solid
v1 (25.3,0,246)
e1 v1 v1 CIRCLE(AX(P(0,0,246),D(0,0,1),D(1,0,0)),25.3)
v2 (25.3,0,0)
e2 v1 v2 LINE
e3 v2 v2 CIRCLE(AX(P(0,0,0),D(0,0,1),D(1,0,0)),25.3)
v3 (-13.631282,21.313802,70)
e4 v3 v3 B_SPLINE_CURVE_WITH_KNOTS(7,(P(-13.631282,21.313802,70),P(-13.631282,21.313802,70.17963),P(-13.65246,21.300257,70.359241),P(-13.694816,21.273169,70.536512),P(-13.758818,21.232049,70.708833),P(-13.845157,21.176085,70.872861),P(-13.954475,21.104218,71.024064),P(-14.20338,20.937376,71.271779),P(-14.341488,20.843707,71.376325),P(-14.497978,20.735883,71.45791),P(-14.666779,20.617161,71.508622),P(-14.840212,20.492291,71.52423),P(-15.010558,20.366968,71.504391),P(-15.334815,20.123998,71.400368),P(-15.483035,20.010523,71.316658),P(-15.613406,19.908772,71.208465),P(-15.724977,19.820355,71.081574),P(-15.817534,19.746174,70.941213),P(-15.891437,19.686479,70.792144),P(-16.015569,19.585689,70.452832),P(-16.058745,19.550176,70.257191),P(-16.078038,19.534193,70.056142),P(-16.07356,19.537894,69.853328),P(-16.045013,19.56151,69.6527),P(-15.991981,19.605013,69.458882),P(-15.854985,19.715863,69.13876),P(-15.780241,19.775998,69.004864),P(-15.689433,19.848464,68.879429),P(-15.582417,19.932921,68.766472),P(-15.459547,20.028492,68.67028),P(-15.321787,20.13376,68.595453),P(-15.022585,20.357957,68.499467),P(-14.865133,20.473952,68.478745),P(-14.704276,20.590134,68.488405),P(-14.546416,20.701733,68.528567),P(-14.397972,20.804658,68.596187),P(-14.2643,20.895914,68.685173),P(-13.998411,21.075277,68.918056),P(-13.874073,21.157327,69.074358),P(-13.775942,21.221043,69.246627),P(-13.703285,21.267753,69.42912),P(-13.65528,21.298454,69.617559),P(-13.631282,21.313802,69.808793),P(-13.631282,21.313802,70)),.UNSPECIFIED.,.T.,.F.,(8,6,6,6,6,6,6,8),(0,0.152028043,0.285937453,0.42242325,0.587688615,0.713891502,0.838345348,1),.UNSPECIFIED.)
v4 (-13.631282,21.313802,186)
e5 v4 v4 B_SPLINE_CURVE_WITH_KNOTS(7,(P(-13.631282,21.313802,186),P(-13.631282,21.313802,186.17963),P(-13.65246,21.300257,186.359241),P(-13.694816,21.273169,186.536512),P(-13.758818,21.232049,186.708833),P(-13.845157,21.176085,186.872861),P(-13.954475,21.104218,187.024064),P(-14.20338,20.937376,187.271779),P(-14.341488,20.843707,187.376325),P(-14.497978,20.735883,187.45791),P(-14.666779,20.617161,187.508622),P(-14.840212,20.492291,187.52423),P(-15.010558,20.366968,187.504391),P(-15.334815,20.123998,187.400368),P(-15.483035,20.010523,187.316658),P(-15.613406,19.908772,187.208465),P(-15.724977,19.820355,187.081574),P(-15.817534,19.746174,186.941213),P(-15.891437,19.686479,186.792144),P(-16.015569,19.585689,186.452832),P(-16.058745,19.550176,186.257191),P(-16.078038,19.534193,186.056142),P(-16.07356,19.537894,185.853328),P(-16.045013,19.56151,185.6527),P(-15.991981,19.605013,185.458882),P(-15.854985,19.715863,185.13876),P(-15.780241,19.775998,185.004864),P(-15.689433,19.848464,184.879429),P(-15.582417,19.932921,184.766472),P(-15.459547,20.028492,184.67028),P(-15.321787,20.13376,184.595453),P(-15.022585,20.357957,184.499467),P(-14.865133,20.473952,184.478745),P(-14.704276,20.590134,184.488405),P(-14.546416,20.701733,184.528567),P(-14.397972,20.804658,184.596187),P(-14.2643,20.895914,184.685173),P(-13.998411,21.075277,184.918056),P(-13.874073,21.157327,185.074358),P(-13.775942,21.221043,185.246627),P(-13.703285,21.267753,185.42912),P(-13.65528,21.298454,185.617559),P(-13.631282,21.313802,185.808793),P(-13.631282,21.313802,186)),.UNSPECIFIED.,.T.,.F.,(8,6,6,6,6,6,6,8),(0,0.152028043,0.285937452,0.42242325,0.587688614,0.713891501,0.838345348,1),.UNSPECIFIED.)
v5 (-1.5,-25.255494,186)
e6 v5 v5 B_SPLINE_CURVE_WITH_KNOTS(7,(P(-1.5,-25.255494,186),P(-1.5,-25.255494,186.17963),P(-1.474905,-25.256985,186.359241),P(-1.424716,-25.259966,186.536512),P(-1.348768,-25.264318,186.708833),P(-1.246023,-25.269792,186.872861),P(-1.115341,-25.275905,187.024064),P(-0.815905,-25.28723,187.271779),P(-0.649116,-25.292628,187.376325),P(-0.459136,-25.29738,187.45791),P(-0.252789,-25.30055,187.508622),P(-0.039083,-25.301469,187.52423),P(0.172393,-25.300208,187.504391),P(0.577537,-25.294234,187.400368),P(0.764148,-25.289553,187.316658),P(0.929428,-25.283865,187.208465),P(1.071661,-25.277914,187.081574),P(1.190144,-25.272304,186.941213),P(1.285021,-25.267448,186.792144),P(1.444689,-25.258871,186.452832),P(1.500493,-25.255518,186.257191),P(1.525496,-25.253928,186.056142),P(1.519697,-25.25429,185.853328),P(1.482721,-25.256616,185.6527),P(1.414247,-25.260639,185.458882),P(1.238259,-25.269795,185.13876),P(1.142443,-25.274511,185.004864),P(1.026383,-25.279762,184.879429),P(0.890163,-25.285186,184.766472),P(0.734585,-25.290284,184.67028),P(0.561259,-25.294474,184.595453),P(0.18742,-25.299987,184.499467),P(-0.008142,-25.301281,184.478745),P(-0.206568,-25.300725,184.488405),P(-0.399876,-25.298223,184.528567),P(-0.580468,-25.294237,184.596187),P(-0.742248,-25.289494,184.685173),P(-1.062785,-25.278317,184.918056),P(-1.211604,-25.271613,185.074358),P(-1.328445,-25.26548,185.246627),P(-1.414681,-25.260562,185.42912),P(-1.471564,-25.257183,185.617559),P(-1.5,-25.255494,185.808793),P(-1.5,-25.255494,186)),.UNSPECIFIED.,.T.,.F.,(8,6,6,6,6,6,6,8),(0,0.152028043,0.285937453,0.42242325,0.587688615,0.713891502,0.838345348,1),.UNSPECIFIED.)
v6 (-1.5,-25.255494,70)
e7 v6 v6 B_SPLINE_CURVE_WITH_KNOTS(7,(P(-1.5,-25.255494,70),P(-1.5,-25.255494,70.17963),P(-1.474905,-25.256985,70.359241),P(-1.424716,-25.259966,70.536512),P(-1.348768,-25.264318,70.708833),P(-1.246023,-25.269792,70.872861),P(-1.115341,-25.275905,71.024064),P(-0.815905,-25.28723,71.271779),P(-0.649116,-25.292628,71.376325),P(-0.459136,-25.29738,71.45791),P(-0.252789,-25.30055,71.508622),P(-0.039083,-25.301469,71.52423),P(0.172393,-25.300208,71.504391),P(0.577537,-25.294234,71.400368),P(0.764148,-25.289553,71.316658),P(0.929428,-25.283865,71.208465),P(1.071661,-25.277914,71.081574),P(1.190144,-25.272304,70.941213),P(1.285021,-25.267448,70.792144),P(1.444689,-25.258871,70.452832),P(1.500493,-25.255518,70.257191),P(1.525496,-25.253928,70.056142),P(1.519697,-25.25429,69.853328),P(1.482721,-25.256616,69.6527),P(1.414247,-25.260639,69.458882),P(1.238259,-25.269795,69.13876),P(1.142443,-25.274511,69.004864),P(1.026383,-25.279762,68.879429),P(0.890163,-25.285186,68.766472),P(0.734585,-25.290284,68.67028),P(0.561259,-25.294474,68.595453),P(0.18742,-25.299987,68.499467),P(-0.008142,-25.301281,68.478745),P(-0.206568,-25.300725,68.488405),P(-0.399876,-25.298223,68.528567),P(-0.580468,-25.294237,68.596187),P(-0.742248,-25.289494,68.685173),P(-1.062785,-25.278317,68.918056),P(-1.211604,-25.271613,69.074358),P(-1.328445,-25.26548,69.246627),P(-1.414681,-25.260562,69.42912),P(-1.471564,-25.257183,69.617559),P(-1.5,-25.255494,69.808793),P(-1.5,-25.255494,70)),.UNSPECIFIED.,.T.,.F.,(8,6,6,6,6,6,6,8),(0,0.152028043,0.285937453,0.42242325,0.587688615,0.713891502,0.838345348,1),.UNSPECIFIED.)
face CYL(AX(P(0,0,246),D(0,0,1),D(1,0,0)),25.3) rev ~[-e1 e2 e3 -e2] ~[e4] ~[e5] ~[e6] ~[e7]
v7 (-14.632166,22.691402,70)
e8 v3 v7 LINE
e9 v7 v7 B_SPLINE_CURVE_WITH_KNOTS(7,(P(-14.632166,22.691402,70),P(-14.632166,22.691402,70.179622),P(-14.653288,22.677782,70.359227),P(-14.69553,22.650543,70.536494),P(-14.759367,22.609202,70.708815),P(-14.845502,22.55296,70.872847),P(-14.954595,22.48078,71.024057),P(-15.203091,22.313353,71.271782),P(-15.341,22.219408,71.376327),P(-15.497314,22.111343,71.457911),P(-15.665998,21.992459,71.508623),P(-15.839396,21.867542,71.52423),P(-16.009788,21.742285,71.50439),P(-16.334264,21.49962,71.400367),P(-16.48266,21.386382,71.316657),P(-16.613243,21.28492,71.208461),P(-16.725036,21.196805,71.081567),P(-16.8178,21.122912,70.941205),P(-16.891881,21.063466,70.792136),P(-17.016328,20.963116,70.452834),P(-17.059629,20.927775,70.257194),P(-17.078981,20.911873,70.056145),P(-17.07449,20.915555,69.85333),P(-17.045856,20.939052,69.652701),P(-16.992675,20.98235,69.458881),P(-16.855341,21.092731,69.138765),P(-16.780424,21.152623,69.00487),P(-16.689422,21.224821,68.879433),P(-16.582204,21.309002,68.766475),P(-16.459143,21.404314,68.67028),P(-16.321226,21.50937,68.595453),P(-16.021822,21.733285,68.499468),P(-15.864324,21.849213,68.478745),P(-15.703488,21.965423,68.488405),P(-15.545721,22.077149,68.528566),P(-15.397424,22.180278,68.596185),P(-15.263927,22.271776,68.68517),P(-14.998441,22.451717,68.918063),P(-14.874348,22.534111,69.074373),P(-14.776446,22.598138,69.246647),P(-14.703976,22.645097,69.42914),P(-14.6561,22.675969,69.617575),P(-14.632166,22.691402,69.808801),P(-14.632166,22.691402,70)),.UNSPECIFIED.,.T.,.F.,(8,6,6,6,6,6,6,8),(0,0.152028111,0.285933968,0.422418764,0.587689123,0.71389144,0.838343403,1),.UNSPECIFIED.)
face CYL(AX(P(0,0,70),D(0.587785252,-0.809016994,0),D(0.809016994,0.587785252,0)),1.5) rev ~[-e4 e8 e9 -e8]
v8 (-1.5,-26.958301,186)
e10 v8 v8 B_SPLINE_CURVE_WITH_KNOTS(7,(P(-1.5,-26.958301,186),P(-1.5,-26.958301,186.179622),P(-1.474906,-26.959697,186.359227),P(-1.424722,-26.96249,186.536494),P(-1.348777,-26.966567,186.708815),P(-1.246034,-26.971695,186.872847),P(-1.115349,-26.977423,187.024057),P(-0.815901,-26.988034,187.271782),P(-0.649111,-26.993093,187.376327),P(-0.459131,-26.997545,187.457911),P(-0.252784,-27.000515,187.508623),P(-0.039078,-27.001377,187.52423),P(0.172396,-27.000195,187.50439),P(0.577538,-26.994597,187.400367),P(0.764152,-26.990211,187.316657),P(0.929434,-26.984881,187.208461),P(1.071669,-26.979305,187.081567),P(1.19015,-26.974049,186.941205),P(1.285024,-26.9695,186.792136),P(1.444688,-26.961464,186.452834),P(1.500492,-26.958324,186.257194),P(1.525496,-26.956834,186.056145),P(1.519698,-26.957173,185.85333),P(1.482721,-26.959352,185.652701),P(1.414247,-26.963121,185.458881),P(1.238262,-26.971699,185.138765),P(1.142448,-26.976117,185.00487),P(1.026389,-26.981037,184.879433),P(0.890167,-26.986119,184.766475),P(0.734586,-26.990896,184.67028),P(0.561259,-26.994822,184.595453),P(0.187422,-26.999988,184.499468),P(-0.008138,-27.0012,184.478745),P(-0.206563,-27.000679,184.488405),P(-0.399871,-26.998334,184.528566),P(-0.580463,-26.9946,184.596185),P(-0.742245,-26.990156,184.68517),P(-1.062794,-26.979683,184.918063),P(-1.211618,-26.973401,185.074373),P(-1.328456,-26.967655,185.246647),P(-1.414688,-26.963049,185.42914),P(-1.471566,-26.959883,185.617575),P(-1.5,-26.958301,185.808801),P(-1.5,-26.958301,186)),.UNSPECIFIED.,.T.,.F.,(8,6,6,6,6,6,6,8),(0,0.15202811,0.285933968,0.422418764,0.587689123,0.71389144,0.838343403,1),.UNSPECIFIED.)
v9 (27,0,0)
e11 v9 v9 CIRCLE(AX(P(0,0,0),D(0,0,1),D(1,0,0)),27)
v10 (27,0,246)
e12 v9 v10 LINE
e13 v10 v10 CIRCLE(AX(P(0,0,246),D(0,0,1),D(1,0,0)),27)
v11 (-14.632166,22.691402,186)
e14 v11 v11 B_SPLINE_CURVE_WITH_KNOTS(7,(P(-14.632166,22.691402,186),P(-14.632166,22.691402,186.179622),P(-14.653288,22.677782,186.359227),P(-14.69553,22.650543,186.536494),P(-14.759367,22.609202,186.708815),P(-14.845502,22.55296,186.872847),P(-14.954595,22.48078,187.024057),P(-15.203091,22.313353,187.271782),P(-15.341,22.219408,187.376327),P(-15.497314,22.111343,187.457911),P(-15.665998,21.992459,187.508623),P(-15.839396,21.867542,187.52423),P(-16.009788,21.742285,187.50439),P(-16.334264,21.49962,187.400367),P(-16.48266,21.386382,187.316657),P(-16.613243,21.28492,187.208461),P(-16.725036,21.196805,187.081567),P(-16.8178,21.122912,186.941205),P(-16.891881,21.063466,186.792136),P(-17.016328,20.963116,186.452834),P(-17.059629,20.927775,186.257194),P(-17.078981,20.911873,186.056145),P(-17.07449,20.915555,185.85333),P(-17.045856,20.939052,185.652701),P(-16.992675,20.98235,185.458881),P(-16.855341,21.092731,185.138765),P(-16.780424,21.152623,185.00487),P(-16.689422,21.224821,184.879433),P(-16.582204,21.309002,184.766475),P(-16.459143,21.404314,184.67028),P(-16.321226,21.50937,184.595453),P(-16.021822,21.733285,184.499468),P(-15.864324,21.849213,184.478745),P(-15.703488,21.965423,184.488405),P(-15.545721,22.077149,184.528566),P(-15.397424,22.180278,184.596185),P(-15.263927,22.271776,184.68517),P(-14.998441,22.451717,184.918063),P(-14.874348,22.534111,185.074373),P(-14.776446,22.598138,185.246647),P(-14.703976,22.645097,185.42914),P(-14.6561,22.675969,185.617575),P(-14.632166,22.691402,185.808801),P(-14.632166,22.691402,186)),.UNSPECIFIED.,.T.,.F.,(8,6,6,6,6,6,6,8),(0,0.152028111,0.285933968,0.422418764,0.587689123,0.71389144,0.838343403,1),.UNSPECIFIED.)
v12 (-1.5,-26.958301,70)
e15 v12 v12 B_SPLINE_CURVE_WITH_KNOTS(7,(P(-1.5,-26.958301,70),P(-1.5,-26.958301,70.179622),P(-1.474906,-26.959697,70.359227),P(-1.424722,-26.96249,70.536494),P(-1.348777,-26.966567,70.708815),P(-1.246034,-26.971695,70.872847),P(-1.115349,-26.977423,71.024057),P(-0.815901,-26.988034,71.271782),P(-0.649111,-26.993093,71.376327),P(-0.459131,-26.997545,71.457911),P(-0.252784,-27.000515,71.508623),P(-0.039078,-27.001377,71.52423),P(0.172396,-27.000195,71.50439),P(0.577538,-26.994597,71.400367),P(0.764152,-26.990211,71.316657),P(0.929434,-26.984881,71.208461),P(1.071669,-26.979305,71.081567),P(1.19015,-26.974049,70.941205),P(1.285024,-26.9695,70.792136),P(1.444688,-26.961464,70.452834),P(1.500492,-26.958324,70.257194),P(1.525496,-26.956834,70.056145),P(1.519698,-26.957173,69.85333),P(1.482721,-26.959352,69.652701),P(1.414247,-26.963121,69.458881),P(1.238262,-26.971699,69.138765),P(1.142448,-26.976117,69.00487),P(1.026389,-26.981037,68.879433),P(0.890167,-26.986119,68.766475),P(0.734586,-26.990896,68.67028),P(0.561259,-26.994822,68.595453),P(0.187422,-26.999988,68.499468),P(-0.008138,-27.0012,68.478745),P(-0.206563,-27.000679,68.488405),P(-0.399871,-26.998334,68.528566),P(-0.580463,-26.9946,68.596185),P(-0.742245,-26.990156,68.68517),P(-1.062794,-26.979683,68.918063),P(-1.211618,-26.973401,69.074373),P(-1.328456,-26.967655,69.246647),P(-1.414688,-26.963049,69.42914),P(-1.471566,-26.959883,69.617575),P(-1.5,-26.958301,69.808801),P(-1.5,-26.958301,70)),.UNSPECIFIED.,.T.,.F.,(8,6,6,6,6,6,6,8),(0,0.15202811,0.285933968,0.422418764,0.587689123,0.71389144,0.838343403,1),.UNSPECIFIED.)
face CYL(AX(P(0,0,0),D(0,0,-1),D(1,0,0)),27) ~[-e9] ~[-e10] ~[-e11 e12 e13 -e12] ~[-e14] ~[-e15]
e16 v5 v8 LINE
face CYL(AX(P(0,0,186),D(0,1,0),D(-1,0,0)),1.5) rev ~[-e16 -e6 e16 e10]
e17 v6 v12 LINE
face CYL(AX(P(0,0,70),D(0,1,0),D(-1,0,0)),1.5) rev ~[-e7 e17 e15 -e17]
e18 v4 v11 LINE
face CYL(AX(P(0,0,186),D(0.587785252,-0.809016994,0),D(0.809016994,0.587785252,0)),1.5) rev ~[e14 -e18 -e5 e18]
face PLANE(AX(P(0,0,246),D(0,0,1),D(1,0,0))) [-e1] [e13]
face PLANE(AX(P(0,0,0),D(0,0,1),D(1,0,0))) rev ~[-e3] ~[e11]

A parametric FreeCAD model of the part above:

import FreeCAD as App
import Part
import Sketcher
from FreeCAD import Vector

doc = App.newDocument("Part")
body = doc.addObject("PartDesign::Body", "Body")

# Sketch on XY plane
sketch1 = body.newObject("Sketcher::SketchObject", "Sketch")
sketch1.AttachmentSupport = (doc.getObject("XY_Plane"), [""])
sketch1.MapMode = "FlatFace"
sketch1.addGeometry(Part.Circle(Vector(0, 0, 0), Vector(0, 0, 1), 27), False)
sketch1.addConstraint([
    Sketcher.Constraint("Coincident", 0, 3, -1, 1),
    Sketcher.Constraint("Diameter", 0, 54.0),
])
pad1 = body.newObject("PartDesign::Pad", "Pad")
pad1.Profile = sketch1
pad1.Length = 246

# Sketch on XY plane
sketch2 = body.newObject("Sketcher::SketchObject", "Sketch001")
sketch2.AttachmentSupport = (doc.getObject("XY_Plane"), [""])
sketch2.MapMode = "FlatFace"
sketch2.AttachmentOffset = App.Placement(Vector(0, 0, 246), App.Rotation())
sketch2.addGeometry(Part.Circle(Vector(0, 0, 0), Vector(0, 0, 1), 25), False)
sketch2.addConstraint([
    Sketcher.Constraint("Coincident", 0, 3, -1, 1),
    Sketcher.Constraint("Diameter", 0, 50.6),
])
pocket1 = body.newObject("PartDesign::Pocket", "Pocket")
pocket1.Profile = sketch2
pocket1.Type = "ThroughAll"

# Sketch on XZ plane
sketch3 = body.newObject("Sketcher::SketchObject", "Sketch002")
sketch3.AttachmentSupport = (doc.getObject("XZ_Plane"), [""])
sketch3.MapMode = "FlatFace"
sketch3.addGeometry([
    Part.Circle(Vector(0, 70, 0), Vector(0, 0, 1), 1.5),
    Part.Circle(Vector(0, 186, 0), Vector(0, 0, 1), 1.5),
], False)
sketch3.addConstraint([
    Sketcher.Constraint("Equal", 0, 1),
    Sketcher.Constraint("PointOnObject", 0, 3, -2),
    Sketcher.Constraint("PointOnObject", 1, 3, -2),
    Sketcher.Constraint("Diameter", 0, 3.0),
    Sketcher.Constraint("DistanceY", -1, 1, 0, 3, 70.0),
    Sketcher.Constraint("DistanceY", -1, 1, 1, 3, 186.0),
])
pocket2 = body.newObject("PartDesign::Pocket", "Pocket001")
pocket2.Profile = sketch3
pocket2.Type = "ThroughAll"
pocket2.Reversed = True
doc.recompute()

polarpattern = body.newObject("PartDesign::PolarPattern", "PolarPattern")
polarpattern.Originals = [pocket2]
polarpattern.Axis = (doc.getObject("Z_Axis"), [""])
polarpattern.Angle = 144
polarpattern.Occurrences = 2
polarpattern.Reversed = True
body.Tip = polarpattern

doc.recompute()
